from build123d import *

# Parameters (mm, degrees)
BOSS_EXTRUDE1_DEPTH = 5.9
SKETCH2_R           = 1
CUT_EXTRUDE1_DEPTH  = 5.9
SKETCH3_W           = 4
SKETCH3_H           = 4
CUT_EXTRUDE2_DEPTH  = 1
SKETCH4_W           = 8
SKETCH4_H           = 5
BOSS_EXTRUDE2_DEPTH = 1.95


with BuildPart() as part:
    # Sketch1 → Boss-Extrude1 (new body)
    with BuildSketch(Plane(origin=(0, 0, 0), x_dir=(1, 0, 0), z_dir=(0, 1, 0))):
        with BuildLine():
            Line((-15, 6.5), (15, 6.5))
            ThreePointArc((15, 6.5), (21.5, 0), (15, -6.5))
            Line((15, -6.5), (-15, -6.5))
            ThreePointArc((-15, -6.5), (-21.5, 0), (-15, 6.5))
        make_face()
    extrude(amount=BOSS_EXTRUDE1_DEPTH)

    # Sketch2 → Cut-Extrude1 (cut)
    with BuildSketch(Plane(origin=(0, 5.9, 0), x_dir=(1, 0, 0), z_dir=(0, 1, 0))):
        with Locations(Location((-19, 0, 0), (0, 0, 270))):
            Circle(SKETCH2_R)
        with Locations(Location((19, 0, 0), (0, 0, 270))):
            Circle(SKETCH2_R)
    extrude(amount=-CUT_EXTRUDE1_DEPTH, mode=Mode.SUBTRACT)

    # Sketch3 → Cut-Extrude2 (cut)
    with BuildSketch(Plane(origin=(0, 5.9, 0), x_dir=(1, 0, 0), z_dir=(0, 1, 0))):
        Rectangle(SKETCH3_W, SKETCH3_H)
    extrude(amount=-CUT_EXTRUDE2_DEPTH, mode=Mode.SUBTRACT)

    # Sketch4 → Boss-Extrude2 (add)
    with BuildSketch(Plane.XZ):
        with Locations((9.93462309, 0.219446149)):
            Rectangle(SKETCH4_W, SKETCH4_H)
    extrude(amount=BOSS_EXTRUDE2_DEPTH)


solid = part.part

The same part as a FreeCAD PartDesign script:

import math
import FreeCAD as App
import Part
import Sketcher
from FreeCAD import Vector
Q = App.Units.Quantity

doc = App.newDocument("Part")
body = doc.addObject("PartDesign::Body", "Body")

sketch1 = body.newObject("Sketcher::SketchObject", "Sketch")
sketch1.AttachmentSupport = (doc.getObject("XZ_Plane"), [""])
sketch1.MapMode = "FlatFace"
sketch1.addGeometry(Part.LineSegment(Vector(15, -6, 0), Vector(-15, -6, 0)), False)
sketch1.addGeometry(Part.ArcOfCircle(Part.Circle(Vector(-15, 0, 0), Vector(0, 0, 1), 6), math.radians(90), math.radians(270)), False)
sketch1.addGeometry(Part.LineSegment(Vector(-15, 6, 0), Vector(15, 6, 0)), False)
sketch1.addGeometry(Part.ArcOfCircle(Part.Circle(Vector(15, 0, 0), Vector(0, 0, 1), 6), math.radians(-90), math.radians(90)), False)
sketch1.addConstraint(Sketcher.Constraint("Tangent", 0, 2, 1, 2))
sketch1.addConstraint(Sketcher.Constraint("Tangent", 1, 1, 2, 1))
sketch1.addConstraint(Sketcher.Constraint("Tangent", 2, 2, 3, 2))
sketch1.addConstraint(Sketcher.Constraint("Tangent", 3, 1, 0, 1))
sketch1.addConstraint(Sketcher.Constraint("Horizontal", 0))
sketch1.addConstraint(Sketcher.Constraint("Horizontal", 2))
sketch1.addConstraint(Sketcher.Constraint("Symmetric", 1, 3, 3, 3, -1, 1))
sketch1.addConstraint(Sketcher.Constraint("Radius", 1, Q("6.5 mm")))
sketch1.addConstraint(Sketcher.Constraint("DistanceX", 0, 2, 0, 1, Q("30 mm")))
pad1 = body.newObject("PartDesign::Pad", "Pad")
pad1.Profile = sketch1
pad1.Length = 5.9
pad1.Reversed = True

sketch2 = body.newObject("Sketcher::SketchObject", "Sketch001")
sketch2.AttachmentSupport = (doc.getObject("XZ_Plane"), [""])
sketch2.MapMode = "FlatFace"
sketch2.AttachmentOffset = App.Placement(Vector(0, 0, -5.9), App.Rotation())
sketch2.addGeometry(Part.Circle(Vector(-19, 0, 0), Vector(0, 0, 1), 1), False)
sketch2.addGeometry(Part.Circle(Vector(19, 0, 0), Vector(0, 0, 1), 1), False)
sketch2.addConstraint(Sketcher.Constraint("Equal", 0, 1))
sketch2.addConstraint(Sketcher.Constraint("Symmetric", 0, 3, 1, 3, -1, 1))
sketch2.addConstraint(Sketcher.Constraint("PointOnObject", 0, 3, -1))
sketch2.addConstraint(Sketcher.Constraint("Diameter", 0, Q("2 mm")))
sketch2.addConstraint(Sketcher.Constraint("DistanceX", 0, 3, -1, 1, Q("19 mm")))
pocket1 = body.newObject("PartDesign::Pocket", "Pocket")
pocket1.Profile = sketch2
pocket1.Length = 5.9
pocket1.Reversed = True

sketch3 = body.newObject("Sketcher::SketchObject", "Sketch002")
sketch3.AttachmentSupport = (doc.getObject("XZ_Plane"), [""])
sketch3.MapMode = "FlatFace"
sketch3.AttachmentOffset = App.Placement(Vector(0, 0, -5.9), App.Rotation())
sketch3.addGeometry(Part.LineSegment(Vector(-2, -2, 0), Vector(-2, 2, 0)), False)
sketch3.addGeometry(Part.LineSegment(Vector(-2, 2, 0), Vector(2, 2, 0)), False)
sketch3.addGeometry(Part.LineSegment(Vector(2, 2, 0), Vector(2, -2, 0)), False)
sketch3.addGeometry(Part.LineSegment(Vector(2, -2, 0), Vector(-2, -2, 0)), False)
sketch3.addConstraint(Sketcher.Constraint("Coincident", 0, 2, 1, 1))
sketch3.addConstraint(Sketcher.Constraint("Coincident", 1, 2, 2, 1))
sketch3.addConstraint(Sketcher.Constraint("Coincident", 2, 2, 3, 1))
sketch3.addConstraint(Sketcher.Constraint("Coincident", 3, 2, 0, 1))
sketch3.addConstraint(Sketcher.Constraint("Vertical", 0))
sketch3.addConstraint(Sketcher.Constraint("Horizontal", 1))
sketch3.addConstraint(Sketcher.Constraint("Vertical", 2))
sketch3.addConstraint(Sketcher.Constraint("Horizontal", 3))
sketch3.addConstraint(Sketcher.Constraint("Symmetric", 0, 2, 2, 2, -1, 1))
sketch3.addConstraint(Sketcher.Constraint("Equal", 3, 0))
sketch3.addConstraint(Sketcher.Constraint("DistanceX", 1, 1, 1, 2, Q("4 mm")))
pocket2 = body.newObject("PartDesign::Pocket", "Pocket001")
pocket2.Profile = sketch3
pocket2.Length = 1
pocket2.Reversed = True

sketch4 = body.newObject("Sketcher::SketchObject", "Sketch003")
sketch4.AttachmentSupport = (doc.getObject("XZ_Plane"), [""])
sketch4.MapMode = "FlatFace"
sketch4.addGeometry(Part.LineSegment(Vector(6, 3, 0), Vector(6, -2, 0)), False)
sketch4.addGeometry(Part.LineSegment(Vector(6, -2, 0), Vector(14, -2, 0)), False)
sketch4.addGeometry(Part.LineSegment(Vector(14, -2, 0), Vector(14, 3, 0)), False)
sketch4.addGeometry(Part.LineSegment(Vector(14, 3, 0), Vector(6, 3, 0)), False)
sketch4.addConstraint(Sketcher.Constraint("Coincident", 0, 2, 1, 1))
sketch4.addConstraint(Sketcher.Constraint("Coincident", 1, 2, 2, 1))
sketch4.addConstraint(Sketcher.Constraint("Coincident", 2, 2, 3, 1))
sketch4.addConstraint(Sketcher.Constraint("Coincident", 3, 2, 0, 1))
sketch4.addConstraint(Sketcher.Constraint("Vertical", 0))
sketch4.addConstraint(Sketcher.Constraint("Horizontal", 1))
sketch4.addConstraint(Sketcher.Constraint("Vertical", 2))
sketch4.addConstraint(Sketcher.Constraint("Horizontal", 3))
sketch4.addConstraint(Sketcher.Constraint("DistanceX", 1, 1, 1, 2, Q("8 mm")))
sketch4.addConstraint(Sketcher.Constraint("DistanceY", 0, 2, 0, 1, Q("5 mm")))
sketch4.addConstraint(Sketcher.Constraint("DistanceX", -1, 1, 0, 2, Q("5.934623 mm")))
sketch4.addConstraint(Sketcher.Constraint("DistanceY", 0, 2, -1, 1, Q("2.280554 mm")))
pad2 = body.newObject("PartDesign::Pad", "Pad001")
pad2.Profile = sketch4
pad2.Length = 1.95

doc.recompute()
